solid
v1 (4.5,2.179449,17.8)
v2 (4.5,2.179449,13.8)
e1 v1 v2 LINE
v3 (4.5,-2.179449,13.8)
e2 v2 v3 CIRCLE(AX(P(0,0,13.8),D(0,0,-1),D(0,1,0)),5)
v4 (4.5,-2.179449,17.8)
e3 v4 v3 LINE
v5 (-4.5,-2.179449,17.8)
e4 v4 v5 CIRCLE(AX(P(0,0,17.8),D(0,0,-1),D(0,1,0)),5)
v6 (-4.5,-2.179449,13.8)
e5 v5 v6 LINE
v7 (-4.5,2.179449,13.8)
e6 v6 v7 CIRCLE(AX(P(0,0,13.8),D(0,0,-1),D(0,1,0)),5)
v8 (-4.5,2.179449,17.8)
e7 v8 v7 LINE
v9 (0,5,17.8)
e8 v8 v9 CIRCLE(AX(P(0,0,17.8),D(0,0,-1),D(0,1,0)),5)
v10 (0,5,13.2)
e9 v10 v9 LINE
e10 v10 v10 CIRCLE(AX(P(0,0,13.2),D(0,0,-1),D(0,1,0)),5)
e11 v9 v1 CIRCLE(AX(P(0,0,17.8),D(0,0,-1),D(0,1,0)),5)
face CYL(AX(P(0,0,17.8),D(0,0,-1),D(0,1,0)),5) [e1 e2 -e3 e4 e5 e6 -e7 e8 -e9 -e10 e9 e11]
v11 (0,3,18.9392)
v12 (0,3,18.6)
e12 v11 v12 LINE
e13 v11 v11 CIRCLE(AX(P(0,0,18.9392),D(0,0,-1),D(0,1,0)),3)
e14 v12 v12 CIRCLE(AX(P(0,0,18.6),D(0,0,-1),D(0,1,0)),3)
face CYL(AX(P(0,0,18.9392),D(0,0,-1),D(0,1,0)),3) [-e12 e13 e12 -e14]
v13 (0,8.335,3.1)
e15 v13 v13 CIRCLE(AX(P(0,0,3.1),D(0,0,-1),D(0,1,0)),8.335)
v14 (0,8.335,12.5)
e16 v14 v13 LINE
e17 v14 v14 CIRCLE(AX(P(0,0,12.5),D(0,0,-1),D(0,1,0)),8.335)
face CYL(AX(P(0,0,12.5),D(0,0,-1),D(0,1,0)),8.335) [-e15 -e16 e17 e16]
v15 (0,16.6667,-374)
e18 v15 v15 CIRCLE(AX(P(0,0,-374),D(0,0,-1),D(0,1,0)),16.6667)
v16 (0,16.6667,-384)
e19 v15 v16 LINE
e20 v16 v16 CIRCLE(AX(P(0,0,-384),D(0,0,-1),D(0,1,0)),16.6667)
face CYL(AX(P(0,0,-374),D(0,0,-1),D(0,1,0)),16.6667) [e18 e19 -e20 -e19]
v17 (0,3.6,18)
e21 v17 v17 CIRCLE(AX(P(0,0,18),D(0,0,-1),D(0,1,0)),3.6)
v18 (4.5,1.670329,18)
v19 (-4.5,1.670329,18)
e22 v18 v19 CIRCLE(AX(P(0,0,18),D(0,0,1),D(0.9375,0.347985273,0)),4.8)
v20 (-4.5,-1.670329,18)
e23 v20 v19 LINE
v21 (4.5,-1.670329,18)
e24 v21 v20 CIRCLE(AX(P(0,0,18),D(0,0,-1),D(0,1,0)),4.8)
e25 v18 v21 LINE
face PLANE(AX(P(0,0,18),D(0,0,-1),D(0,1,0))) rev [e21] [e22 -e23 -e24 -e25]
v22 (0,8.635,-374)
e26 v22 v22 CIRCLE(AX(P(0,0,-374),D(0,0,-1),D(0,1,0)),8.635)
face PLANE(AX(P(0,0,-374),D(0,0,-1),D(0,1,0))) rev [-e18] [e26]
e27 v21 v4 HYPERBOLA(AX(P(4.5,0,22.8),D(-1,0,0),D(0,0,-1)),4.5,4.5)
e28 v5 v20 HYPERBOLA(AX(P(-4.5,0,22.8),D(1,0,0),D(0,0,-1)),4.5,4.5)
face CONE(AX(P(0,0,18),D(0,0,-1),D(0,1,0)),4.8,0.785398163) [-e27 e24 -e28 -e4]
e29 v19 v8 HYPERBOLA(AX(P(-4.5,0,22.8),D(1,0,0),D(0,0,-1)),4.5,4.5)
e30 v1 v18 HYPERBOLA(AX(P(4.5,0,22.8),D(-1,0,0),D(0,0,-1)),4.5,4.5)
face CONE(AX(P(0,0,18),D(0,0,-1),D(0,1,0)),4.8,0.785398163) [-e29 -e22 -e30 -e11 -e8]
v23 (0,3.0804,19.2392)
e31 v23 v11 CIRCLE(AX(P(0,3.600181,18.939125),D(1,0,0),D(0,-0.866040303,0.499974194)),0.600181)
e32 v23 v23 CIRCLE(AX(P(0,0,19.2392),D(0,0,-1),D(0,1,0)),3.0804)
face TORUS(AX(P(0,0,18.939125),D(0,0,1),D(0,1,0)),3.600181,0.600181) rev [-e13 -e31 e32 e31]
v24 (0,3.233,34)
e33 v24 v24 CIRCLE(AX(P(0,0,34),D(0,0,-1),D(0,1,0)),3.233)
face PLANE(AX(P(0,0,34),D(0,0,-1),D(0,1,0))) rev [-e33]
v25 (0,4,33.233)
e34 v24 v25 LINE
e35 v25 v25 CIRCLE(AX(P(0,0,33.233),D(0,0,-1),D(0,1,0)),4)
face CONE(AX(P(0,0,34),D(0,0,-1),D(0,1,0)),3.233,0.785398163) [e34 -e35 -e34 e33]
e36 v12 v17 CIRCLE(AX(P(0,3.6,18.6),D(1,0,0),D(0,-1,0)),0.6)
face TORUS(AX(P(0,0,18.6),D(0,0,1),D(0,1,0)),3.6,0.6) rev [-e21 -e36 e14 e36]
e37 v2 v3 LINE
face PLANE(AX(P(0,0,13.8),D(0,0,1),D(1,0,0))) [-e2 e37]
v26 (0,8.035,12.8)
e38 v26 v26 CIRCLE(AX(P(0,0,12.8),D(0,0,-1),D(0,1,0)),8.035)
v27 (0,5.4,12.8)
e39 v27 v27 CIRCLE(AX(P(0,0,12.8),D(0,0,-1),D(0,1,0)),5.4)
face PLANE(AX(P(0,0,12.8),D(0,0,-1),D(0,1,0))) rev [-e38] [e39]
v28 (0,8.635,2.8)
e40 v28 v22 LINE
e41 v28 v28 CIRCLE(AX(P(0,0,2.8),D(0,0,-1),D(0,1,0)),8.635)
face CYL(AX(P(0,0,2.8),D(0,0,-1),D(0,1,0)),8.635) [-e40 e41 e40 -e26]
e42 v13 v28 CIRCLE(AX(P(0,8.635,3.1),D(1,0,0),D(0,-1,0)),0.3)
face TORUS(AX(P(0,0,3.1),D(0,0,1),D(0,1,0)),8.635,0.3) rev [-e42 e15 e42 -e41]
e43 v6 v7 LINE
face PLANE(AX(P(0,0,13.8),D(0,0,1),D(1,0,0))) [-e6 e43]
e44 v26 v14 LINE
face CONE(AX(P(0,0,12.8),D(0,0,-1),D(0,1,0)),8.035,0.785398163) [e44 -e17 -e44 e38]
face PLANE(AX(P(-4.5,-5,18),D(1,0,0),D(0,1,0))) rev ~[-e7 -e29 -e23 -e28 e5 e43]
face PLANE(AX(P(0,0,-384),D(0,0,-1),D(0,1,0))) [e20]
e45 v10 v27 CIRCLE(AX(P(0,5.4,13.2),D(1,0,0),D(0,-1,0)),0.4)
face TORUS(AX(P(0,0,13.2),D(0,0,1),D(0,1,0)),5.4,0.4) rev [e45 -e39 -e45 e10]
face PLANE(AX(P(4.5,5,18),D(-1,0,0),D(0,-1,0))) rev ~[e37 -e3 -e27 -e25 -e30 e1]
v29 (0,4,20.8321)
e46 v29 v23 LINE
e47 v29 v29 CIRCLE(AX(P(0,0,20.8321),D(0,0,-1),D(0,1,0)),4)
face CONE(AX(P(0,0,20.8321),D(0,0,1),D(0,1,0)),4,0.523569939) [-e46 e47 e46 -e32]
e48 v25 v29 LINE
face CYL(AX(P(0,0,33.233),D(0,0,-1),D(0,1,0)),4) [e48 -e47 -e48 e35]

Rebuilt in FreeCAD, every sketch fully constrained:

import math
import FreeCAD as App
import Part
import Sketcher

V = App.Vector
Q = App.Units.Quantity

doc = App.newDocument("Part")
body = doc.addObject("PartDesign::Body", "Body")

# Sketch on YZ plane
sketch1 = body.newObject("Sketcher::SketchObject", "Sketch")
sketch1.AttachmentSupport = (doc.getObject("YZ_Plane"), [""])
sketch1.MapMode = "FlatFace"
sketch1.addGeometry(Part.LineSegment(V(0, 18, 0), V(0, -384, 0)), False)
sketch1.addGeometry(Part.LineSegment(V(0, -384, 0), V(16.67, -384, 0)), False)
sketch1.addGeometry(Part.LineSegment(V(16.67, -384, 0), V(16.67, -374, 0)), False)
sketch1.addGeometry(Part.LineSegment(V(16.67, -374, 0), V(8.63, -374, 0)), False)
sketch1.addGeometry(Part.LineSegment(V(8.63, -374, 0), V(8.63, 2.8, 0)), False)
sketch1.addGeometry(Part.ArcOfCircle(Part.Circle(V(8.63, 3.1, 0), V(0, 0, 1), 0.3), math.radians(180), math.radians(270)), False)
sketch1.addGeometry(Part.LineSegment(V(8.34, 3.1, 0), V(8.34, 12.5, 0)), False)
sketch1.addGeometry(Part.LineSegment(V(8.34, 12.5, 0), V(8.04, 12.8, 0)), False)
sketch1.addGeometry(Part.LineSegment(V(8.04, 12.8, 0), V(5.4, 12.8, 0)), False)
sketch1.addGeometry(Part.ArcOfCircle(Part.Circle(V(5.4, 13.2, 0), V(0, 0, 1), 0.4), math.radians(180), math.radians(270)), False)
sketch1.addGeometry(Part.LineSegment(V(5, 13.2, 0), V(5, 17.8, 0)), False)
sketch1.addGeometry(Part.LineSegment(V(5, 17.8, 0), V(4.8, 18, 0)), False)
sketch1.addGeometry(Part.LineSegment(V(4.8, 18, 0), V(0, 18, 0)), False)
sketch1.addConstraint(Sketcher.Constraint("Coincident", 0, 2, 1, 1))
sketch1.addConstraint(Sketcher.Constraint("Coincident", 1, 2, 2, 1))
sketch1.addConstraint(Sketcher.Constraint("Coincident", 2, 2, 3, 1))
sketch1.addConstraint(Sketcher.Constraint("Coincident", 3, 2, 4, 1))
sketch1.addConstraint(Sketcher.Constraint("Coincident", 4, 2, 5, 2))
sketch1.addConstraint(Sketcher.Constraint("Tangent", 5, 1, 6, 1))
sketch1.addConstraint(Sketcher.Constraint("Coincident", 6, 2, 7, 1))
sketch1.addConstraint(Sketcher.Constraint("Coincident", 7, 2, 8, 1))
sketch1.addConstraint(Sketcher.Constraint("Tangent", 8, 2, 9, 2))
sketch1.addConstraint(Sketcher.Constraint("Tangent", 9, 1, 10, 1))
sketch1.addConstraint(Sketcher.Constraint("Coincident", 10, 2, 11, 1))
sketch1.addConstraint(Sketcher.Constraint("Coincident", 11, 2, 12, 1))
sketch1.addConstraint(Sketcher.Constraint("Coincident", 12, 2, 0, 1))
sketch1.addConstraint(Sketcher.Constraint("Vertical", 0))
sketch1.addConstraint(Sketcher.Constraint("Horizontal", 1))
sketch1.addConstraint(Sketcher.Constraint("Vertical", 2))
sketch1.addConstraint(Sketcher.Constraint("Horizontal", 3))
sketch1.addConstraint(Sketcher.Constraint("Vertical", 4))
sketch1.addConstraint(Sketcher.Constraint("Vertical", 6))
sketch1.addConstraint(Sketcher.Constraint("Horizontal", 8))
sketch1.addConstraint(Sketcher.Constraint("Vertical", 10))
sketch1.addConstraint(Sketcher.Constraint("Horizontal", 12))
sketch1.addConstraint(Sketcher.Constraint("PointOnObject", 0, 2, -2))
sketch1.addConstraint(Sketcher.Constraint("Parallel", 7, 11))
sketch1.addConstraint(Sketcher.Constraint("Vertical", 5, 3, 3, 2))
sketch1.addConstraint(Sketcher.Constraint("Radius", 5, Q("0.3 mm")))
sketch1.addConstraint(Sketcher.Constraint("Radius", 9, Q("0.4 mm")))
sketch1.addConstraint(Sketcher.Constraint("DistanceY", 0, 2, 0, 1, Q("402 mm")))
sketch1.addConstraint(Sketcher.Constraint("DistanceY", 2, 1, 2, 2, Q("10 mm")))
sketch1.addConstraint(Sketcher.Constraint("Angle", 7, Q("135 deg")))
sketch1.addConstraint(Sketcher.Constraint("DistanceX", 12, 2, 12, 1, Q("4.8 mm")))
sketch1.addConstraint(Sketcher.Constraint("DistanceY", 4, 1, 4, 2, Q("376.8 mm")))
sketch1.addConstraint(Sketcher.Constraint("DistanceY", 6, 1, 6, 2, Q("9.4 mm")))
sketch1.addConstraint(Sketcher.Constraint("DistanceY", 10, 1, 10, 2, Q("4.6 mm")))
sketch1.addConstraint(Sketcher.Constraint("DistanceY", 0, 2, -1, 1, Q("384 mm")))
sketch1.addConstraint(Sketcher.Constraint("DistanceX", -1, 1, 9, 1, Q("5 mm")))
sketch1.addConstraint(Sketcher.Constraint("DistanceX", 8, 2, 8, 1, Q("2.635 mm")))
sketch1.addConstraint(Sketcher.Constraint("DistanceX", 1, 1, 1, 2, Q("16.6667 mm")))
revolution = body.newObject("PartDesign::Revolution", "Revolution")
revolution.Profile = sketch1
revolution.ReferenceAxis = (sketch1, ["V_Axis"])
revolution.Angle = 360

# Sketch on YZ plane
sketch2 = body.newObject("Sketcher::SketchObject", "Sketch001")
sketch2.AttachmentSupport = (doc.getObject("YZ_Plane"), [""])
sketch2.MapMode = "FlatFace"
sketch2.addGeometry(Part.LineSegment(V(0, 34, 0), V(0, 18, 0)), False)
sketch2.addGeometry(Part.LineSegment(V(0, 18, 0), V(3.6, 18, 0)), False)
sketch2.addGeometry(Part.ArcOfCircle(Part.Circle(V(3.6, 18.6, 0), V(0, 0, 1), 0.6), math.radians(180), math.radians(270)), False)
sketch2.addGeometry(Part.LineSegment(V(3, 18.6, 0), V(3, 18.94, 0)), False)
sketch2.addGeometry(Part.ArcOfCircle(Part.Circle(V(3.6, 18.94, 0), V(0, 0, 1), 0.6), math.radians(150), math.radians(180)), False)
sketch2.addGeometry(Part.LineSegment(V(3.08, 19.24, 0), V(4, 20.83, 0)), False)
sketch2.addGeometry(Part.LineSegment(V(4, 20.83, 0), V(4, 33.23, 0)), False)
sketch2.addGeometry(Part.LineSegment(V(4, 33.23, 0), V(3.23, 34, 0)), False)
sketch2.addGeometry(Part.LineSegment(V(3.23, 34, 0), V(0, 34, 0)), False)
sketch2.addConstraint(Sketcher.Constraint("Coincident", 0, 2, 1, 1))
sketch2.addConstraint(Sketcher.Constraint("Tangent", 1, 2, 2, 2))
sketch2.addConstraint(Sketcher.Constraint("Tangent", 2, 1, 3, 1))
sketch2.addConstraint(Sketcher.Constraint("Tangent", 3, 2, 4, 2))
sketch2.addConstraint(Sketcher.Constraint("Tangent", 4, 1, 5, 1))
sketch2.addConstraint(Sketcher.Constraint("Coincident", 5, 2, 6, 1))
sketch2.addConstraint(Sketcher.Constraint("Coincident", 6, 2, 7, 1))
sketch2.addConstraint(Sketcher.Constraint("Coincident", 7, 2, 8, 1))
sketch2.addConstraint(Sketcher.Constraint("Coincident", 8, 2, 0, 1))
sketch2.addConstraint(Sketcher.Constraint("Vertical", 0))
sketch2.addConstraint(Sketcher.Constraint("Horizontal", 1))
sketch2.addConstraint(Sketcher.Constraint("Vertical", 3))
sketch2.addConstraint(Sketcher.Constraint("Vertical", 6))
sketch2.addConstraint(Sketcher.Constraint("Horizontal", 8))
sketch2.addConstraint(Sketcher.Constraint("Equal", 2, 4))
sketch2.addConstraint(Sketcher.Constraint("PointOnObject", 0, 2, -2))
sketch2.addConstraint(Sketcher.Constraint("Radius", 2, Q("0.6 mm")))
sketch2.addConstraint(Sketcher.Constraint("DistanceY", 0, 2, 0, 1, Q("16 mm")))
sketch2.addConstraint(Sketcher.Constraint("Angle", 7, Q("135 deg")))
sketch2.addConstraint(Sketcher.Constraint("DistanceX", 1, 1, 1, 2, Q("3.6 mm")))
sketch2.addConstraint(Sketcher.Constraint("DistanceY", -1, 1, 0, 2, Q("18 mm")))
sketch2.addConstraint(Sketcher.Constraint("DistanceX", -1, 1, 5, 2, Q("4 mm")))
sketch2.addConstraint(Sketcher.Constraint("DistanceY", 3, 2, 4, 1, Q("0.3 mm")))
sketch2.addConstraint(Sketcher.Constraint("DistanceX", 8, 2, 8, 1, Q("3.233 mm")))
sketch2.addConstraint(Sketcher.Constraint("DistanceY", 6, 1, 6, 2, Q("12.401 mm")))
revolution2 = body.newObject("PartDesign::Revolution", "Revolution001")
revolution2.Profile = sketch2
revolution2.ReferenceAxis = (sketch2, ["V_Axis"])
revolution2.Angle = 360

# Sketch on XY plane
sketch3 = body.newObject("Sketcher::SketchObject", "Sketch002")
sketch3.AttachmentSupport = (doc.getObject("XY_Plane"), [""])
sketch3.MapMode = "FlatFace"
sketch3.AttachmentOffset = App.Placement(V(0, 0, 18), App.Rotation())
sketch3.addGeometry(Part.LineSegment(V(6.5, 7, 0), V(-6.5, 7, 0)), False)
sketch3.addGeometry(Part.LineSegment(V(-6.5, 7, 0), V(-6.5, -5, 0)), False)
sketch3.addGeometry(Part.LineSegment(V(-6.5, -5, 0), V(-4.5, -5, 0)), False)
sketch3.addGeometry(Part.LineSegment(V(-4.5, -5, 0), V(-4.5, 5, 0)), False)
sketch3.addGeometry(Part.LineSegment(V(-4.5, 5, 0), V(4.5, 5, 0)), False)
sketch3.addGeometry(Part.LineSegment(V(4.5, 5, 0), V(4.5, -5, 0)), False)
sketch3.addGeometry(Part.LineSegment(V(4.5, -5, 0), V(6.5, -5, 0)), False)
sketch3.addGeometry(Part.LineSegment(V(6.5, -5, 0), V(6.5, 7, 0)), False)
sketch3.addConstraint(Sketcher.Constraint("Coincident", 0, 2, 1, 1))
sketch3.addConstraint(Sketcher.Constraint("Coincident", 1, 2, 2, 1))
sketch3.addConstraint(Sketcher.Constraint("Coincident", 2, 2, 3, 1))
sketch3.addConstraint(Sketcher.Constraint("Coincident", 3, 2, 4, 1))
sketch3.addConstraint(Sketcher.Constraint("Coincident", 4, 2, 5, 1))
sketch3.addConstraint(Sketcher.Constraint("Coincident", 5, 2, 6, 1))
sketch3.addConstraint(Sketcher.Constraint("Coincident", 6, 2, 7, 1))
sketch3.addConstraint(Sketcher.Constraint("Coincident", 7, 2, 0, 1))
sketch3.addConstraint(Sketcher.Constraint("Horizontal", 0))
sketch3.addConstraint(Sketcher.Constraint("Vertical", 1))
sketch3.addConstraint(Sketcher.Constraint("Horizontal", 2))
sketch3.addConstraint(Sketcher.Constraint("Vertical", 3))
sketch3.addConstraint(Sketcher.Constraint("Horizontal", 4))
sketch3.addConstraint(Sketcher.Constraint("Vertical", 5))
sketch3.addConstraint(Sketcher.Constraint("Horizontal", 6))
sketch3.addConstraint(Sketcher.Constraint("Vertical", 7))
sketch3.addConstraint(Sketcher.Constraint("Symmetric", 2, 2, 4, 2, -1, 1))
sketch3.addConstraint(Sketcher.Constraint("Symmetric", 1, 2, 6, 2, -2))
sketch3.addConstraint(Sketcher.Constraint("DistanceX", 0, 2, 0, 1, Q("13 mm")))
sketch3.addConstraint(Sketcher.Constraint("DistanceX", 2, 1, 2, 2, Q("2 mm")))
sketch3.addConstraint(Sketcher.Constraint("DistanceY", 1, 2, 1, 1, Q("12 mm")))
sketch3.addConstraint(Sketcher.Constraint("DistanceY", 3, 1, 3, 2, Q("10 mm")))
pocket1 = body.newObject("PartDesign::Pocket", "Pocket")
pocket1.Profile = sketch3
pocket1.Length = 4.2

doc.recompute()
